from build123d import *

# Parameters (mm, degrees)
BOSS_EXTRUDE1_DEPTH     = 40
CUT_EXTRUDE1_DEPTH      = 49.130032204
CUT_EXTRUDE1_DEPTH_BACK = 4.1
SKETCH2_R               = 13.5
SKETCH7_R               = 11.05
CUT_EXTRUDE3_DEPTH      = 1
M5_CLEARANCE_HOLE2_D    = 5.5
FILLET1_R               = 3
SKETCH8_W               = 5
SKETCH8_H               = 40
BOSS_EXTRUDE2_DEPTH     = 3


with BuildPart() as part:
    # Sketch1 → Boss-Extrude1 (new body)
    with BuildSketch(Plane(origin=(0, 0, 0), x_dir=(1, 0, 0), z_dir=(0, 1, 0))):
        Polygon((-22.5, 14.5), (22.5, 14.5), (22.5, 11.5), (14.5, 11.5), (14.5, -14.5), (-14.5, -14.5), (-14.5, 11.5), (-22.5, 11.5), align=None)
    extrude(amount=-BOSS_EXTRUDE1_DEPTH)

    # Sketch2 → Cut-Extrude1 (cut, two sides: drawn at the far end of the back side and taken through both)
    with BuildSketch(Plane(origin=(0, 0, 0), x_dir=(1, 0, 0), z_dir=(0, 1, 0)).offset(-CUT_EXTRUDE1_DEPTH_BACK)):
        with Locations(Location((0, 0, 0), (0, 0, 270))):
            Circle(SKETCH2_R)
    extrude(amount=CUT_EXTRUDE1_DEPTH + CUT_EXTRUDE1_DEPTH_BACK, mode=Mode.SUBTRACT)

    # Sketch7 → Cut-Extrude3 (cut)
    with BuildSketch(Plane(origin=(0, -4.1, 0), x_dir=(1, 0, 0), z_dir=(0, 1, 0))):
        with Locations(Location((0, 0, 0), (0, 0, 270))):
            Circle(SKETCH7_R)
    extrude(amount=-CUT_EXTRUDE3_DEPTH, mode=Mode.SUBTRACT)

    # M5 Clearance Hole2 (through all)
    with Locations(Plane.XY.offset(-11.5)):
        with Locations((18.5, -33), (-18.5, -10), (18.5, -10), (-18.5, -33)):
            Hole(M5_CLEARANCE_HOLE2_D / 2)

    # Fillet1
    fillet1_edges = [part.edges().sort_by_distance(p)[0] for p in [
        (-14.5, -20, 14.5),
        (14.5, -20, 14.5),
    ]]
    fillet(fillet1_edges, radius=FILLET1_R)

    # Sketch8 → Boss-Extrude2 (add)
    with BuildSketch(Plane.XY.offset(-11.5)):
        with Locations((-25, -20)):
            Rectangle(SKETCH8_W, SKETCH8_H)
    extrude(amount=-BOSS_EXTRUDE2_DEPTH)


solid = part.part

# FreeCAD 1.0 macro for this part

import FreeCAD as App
import Part
import Sketcher
Q = App.Units.Quantity


def edges_at(feature, points):
    """Names of the edges that pass closest to the given points."""
    edges = feature.Shape.Edges
    near = lambda p: min(range(len(edges)), key=lambda i: edges[i].distToShape(Part.Vertex(*p))[0])
    return sorted({f"Edge{near(p) + 1}" for p in points})


def add_polygon(sketch, points):
    """Adds a closed chain of lines whose ends are joined by coincident constraints."""
    first, n = sketch.GeometryCount, len(points)
    for a, b in zip(points, points[1:] + points[:1]):
        sketch.addGeometry(Part.LineSegment(App.Vector(*a, 0), App.Vector(*b, 0)), False)
    for i in range(n):
        sketch.addConstraint(Sketcher.Constraint("Coincident", first + i, 2, first + (i + 1) % n, 1))

doc = App.newDocument("Part")
body = doc.addObject("PartDesign::Body", "Body")

# Sketch on XZ plane
sketch1 = doc.addObject("Sketcher::SketchObject", "Sketch")
body.addObject(sketch1)
sketch1.AttachmentSupport = (doc.XZ_Plane, [""])
sketch1.MapMode = "FlatFace"
add_polygon(sketch1, [(22.5, -14.5), (-22.5, -14.5), (-22.5, -11.5), (-14.5, -11.5), (-14.5, 14.5), (14.5, 14.5), (14.5, -11.5), (22.5, -11.5)])  # lines 0-7
sketch1.addConstraint([
    Sketcher.Constraint("Horizontal", 0),
    Sketcher.Constraint("Vertical", 1),
    Sketcher.Constraint("Horizontal", 2),
    Sketcher.Constraint("Vertical", 3),
    Sketcher.Constraint("Horizontal", 4),
    Sketcher.Constraint("Vertical", 5),
    Sketcher.Constraint("Horizontal", 6),
    Sketcher.Constraint("Vertical", 7),
    Sketcher.Constraint("Symmetric", 2, 2, 5, 2, -2),
    Sketcher.Constraint("Equal", 2, 6),
    Sketcher.Constraint("DistanceX", 0, 2, 0, 1, Q("45 mm")),
    Sketcher.Constraint("DistanceX", 2, 1, 2, 2, Q("8 mm")),
    Sketcher.Constraint("DistanceY", 1, 1, 1, 2, Q("3 mm")),
    Sketcher.Constraint("DistanceY", 3, 1, 3, 2, Q("26 mm")),
    Sketcher.Constraint("DistanceY", 0, 2, -1, 1, Q("14.5 mm")),
])
pad1 = doc.addObject("PartDesign::Pad", "Pad")
body.addObject(pad1)
pad1.Profile = sketch1
pad1.Length = 40

# Sketch on XZ plane
sketch2 = doc.addObject("Sketcher::SketchObject", "Sketch001")
body.addObject(sketch2)
sketch2.AttachmentSupport = (doc.XZ_Plane, [""])
sketch2.MapMode = "FlatFace"
sketch2.addGeometry(Part.Circle(App.Vector(0, 0, 0), App.Vector(0, 0, 1), 14), False)
sketch2.addConstraint([
    Sketcher.Constraint("Coincident", 0, 3, -1, 1),
    Sketcher.Constraint("Diameter", 0, Q("27 mm")),
])
pocket1 = doc.addObject("PartDesign::Pocket", "Pocket")
body.addObject(pocket1)
pocket1.Profile = sketch2
pocket1.Type = "TwoLengths"
pocket1.Length = 49.130032
pocket1.Length2 = 4.1

# Sketch on XZ plane
sketch3 = doc.addObject("Sketcher::SketchObject", "Sketch002")
body.addObject(sketch3)
sketch3.AttachmentSupport = (doc.XZ_Plane, [""])
sketch3.MapMode = "FlatFace"
sketch3.AttachmentOffset = App.Placement(App.Vector(0, 0, 4.1), App.Rotation())
sketch3.addGeometry(Part.Circle(App.Vector(0, 0, 0), App.Vector(0, 0, 1), 11), False)
sketch3.addConstraint([
    Sketcher.Constraint("Coincident", 0, 3, -1, 1),
    Sketcher.Constraint("Diameter", 0, Q("22.1 mm")),
])
pocket2 = doc.addObject("PartDesign::Pocket", "Pocket001")
body.addObject(pocket2)
pocket2.Profile = sketch3
pocket2.Length = 1
pocket2.Reversed = True

# Sketch on XY plane
sketch4 = doc.addObject("Sketcher::SketchObject", "Sketch003")
body.addObject(sketch4)
sketch4.AttachmentSupport = (doc.XY_Plane, [""])
sketch4.MapMode = "FlatFace"
sketch4.AttachmentOffset = App.Placement(App.Vector(0, 0, -11.5), App.Rotation())
sketch4.addGeometry([
    Part.Circle(App.Vector(18.5, -33, 0), App.Vector(0, 0, 1), 2.8),
    Part.Circle(App.Vector(-18.5, -10, 0), App.Vector(0, 0, 1), 2.8),
    Part.Circle(App.Vector(18.5, -10, 0), App.Vector(0, 0, 1), 2.8),
    Part.Circle(App.Vector(-18.5, -33, 0), App.Vector(0, 0, 1), 2.8),
], False)
sketch4.addConstraint([
    Sketcher.Constraint("Equal", 0, 1),
    Sketcher.Constraint("Equal", 1, 2),
    Sketcher.Constraint("Equal", 2, 3),
    Sketcher.Constraint("Symmetric", 1, 3, 2, 3, -2),
    Sketcher.Constraint("Symmetric", 0, 3, 3, 3, -2),
    Sketcher.Constraint("Vertical", 0, 3, 2, 3),
    Sketcher.Constraint("Diameter", 0, Q("5.5 mm")),
    Sketcher.Constraint("DistanceY", 0, 3, -1, 1, Q("33 mm")),
    Sketcher.Constraint("DistanceY", 1, 3, -1, 1, Q("10 mm")),
    Sketcher.Constraint("DistanceX", 1, 3, 0, 3, Q("37 mm")),
])
doc.recompute()
hole = doc.addObject("PartDesign::Hole", "Hole")
body.addObject(hole)
hole.Profile = sketch4
hole.ThreadType = "None"
hole.Diameter = 5.5
hole.DepthType = "ThroughAll"
doc.recompute()

fillet = doc.addObject("PartDesign::Fillet", "Fillet")
body.addObject(fillet)
fillet.Base = (hole, edges_at(hole, [(-14.5, -20, 14.5), (14.5, -20, 14.5)]))
fillet.Radius = 3

# Sketch on XY plane
sketch5 = doc.addObject("Sketcher::SketchObject", "Sketch004")
body.addObject(sketch5)
sketch5.AttachmentSupport = (doc.XY_Plane, [""])
sketch5.MapMode = "FlatFace"
sketch5.AttachmentOffset = App.Placement(App.Vector(0, 0, -11.5), App.Rotation())
add_polygon(sketch5, [(-28, 0), (-28, -40), (-22, -40), (-22, 0)])  # lines 0-3
sketch5.addConstraint([
    Sketcher.Constraint("Vertical", 0),
    Sketcher.Constraint("Horizontal", 1),
    Sketcher.Constraint("Vertical", 2),
    Sketcher.Constraint("Horizontal", 3),
    Sketcher.Constraint("PointOnObject", 2, 2, -1),
    Sketcher.Constraint("DistanceX", 1, 1, 1, 2, Q("5 mm")),
    Sketcher.Constraint("DistanceY", 0, 2, 0, 1, Q("40 mm")),
    Sketcher.Constraint("DistanceX", 0, 2, -1, 1, Q("27.5 mm")),
])
pad2 = doc.addObject("PartDesign::Pad", "Pad001")
body.addObject(pad2)
pad2.Profile = sketch5
pad2.Length = 3
pad2.Reversed = True

doc.recompute()
